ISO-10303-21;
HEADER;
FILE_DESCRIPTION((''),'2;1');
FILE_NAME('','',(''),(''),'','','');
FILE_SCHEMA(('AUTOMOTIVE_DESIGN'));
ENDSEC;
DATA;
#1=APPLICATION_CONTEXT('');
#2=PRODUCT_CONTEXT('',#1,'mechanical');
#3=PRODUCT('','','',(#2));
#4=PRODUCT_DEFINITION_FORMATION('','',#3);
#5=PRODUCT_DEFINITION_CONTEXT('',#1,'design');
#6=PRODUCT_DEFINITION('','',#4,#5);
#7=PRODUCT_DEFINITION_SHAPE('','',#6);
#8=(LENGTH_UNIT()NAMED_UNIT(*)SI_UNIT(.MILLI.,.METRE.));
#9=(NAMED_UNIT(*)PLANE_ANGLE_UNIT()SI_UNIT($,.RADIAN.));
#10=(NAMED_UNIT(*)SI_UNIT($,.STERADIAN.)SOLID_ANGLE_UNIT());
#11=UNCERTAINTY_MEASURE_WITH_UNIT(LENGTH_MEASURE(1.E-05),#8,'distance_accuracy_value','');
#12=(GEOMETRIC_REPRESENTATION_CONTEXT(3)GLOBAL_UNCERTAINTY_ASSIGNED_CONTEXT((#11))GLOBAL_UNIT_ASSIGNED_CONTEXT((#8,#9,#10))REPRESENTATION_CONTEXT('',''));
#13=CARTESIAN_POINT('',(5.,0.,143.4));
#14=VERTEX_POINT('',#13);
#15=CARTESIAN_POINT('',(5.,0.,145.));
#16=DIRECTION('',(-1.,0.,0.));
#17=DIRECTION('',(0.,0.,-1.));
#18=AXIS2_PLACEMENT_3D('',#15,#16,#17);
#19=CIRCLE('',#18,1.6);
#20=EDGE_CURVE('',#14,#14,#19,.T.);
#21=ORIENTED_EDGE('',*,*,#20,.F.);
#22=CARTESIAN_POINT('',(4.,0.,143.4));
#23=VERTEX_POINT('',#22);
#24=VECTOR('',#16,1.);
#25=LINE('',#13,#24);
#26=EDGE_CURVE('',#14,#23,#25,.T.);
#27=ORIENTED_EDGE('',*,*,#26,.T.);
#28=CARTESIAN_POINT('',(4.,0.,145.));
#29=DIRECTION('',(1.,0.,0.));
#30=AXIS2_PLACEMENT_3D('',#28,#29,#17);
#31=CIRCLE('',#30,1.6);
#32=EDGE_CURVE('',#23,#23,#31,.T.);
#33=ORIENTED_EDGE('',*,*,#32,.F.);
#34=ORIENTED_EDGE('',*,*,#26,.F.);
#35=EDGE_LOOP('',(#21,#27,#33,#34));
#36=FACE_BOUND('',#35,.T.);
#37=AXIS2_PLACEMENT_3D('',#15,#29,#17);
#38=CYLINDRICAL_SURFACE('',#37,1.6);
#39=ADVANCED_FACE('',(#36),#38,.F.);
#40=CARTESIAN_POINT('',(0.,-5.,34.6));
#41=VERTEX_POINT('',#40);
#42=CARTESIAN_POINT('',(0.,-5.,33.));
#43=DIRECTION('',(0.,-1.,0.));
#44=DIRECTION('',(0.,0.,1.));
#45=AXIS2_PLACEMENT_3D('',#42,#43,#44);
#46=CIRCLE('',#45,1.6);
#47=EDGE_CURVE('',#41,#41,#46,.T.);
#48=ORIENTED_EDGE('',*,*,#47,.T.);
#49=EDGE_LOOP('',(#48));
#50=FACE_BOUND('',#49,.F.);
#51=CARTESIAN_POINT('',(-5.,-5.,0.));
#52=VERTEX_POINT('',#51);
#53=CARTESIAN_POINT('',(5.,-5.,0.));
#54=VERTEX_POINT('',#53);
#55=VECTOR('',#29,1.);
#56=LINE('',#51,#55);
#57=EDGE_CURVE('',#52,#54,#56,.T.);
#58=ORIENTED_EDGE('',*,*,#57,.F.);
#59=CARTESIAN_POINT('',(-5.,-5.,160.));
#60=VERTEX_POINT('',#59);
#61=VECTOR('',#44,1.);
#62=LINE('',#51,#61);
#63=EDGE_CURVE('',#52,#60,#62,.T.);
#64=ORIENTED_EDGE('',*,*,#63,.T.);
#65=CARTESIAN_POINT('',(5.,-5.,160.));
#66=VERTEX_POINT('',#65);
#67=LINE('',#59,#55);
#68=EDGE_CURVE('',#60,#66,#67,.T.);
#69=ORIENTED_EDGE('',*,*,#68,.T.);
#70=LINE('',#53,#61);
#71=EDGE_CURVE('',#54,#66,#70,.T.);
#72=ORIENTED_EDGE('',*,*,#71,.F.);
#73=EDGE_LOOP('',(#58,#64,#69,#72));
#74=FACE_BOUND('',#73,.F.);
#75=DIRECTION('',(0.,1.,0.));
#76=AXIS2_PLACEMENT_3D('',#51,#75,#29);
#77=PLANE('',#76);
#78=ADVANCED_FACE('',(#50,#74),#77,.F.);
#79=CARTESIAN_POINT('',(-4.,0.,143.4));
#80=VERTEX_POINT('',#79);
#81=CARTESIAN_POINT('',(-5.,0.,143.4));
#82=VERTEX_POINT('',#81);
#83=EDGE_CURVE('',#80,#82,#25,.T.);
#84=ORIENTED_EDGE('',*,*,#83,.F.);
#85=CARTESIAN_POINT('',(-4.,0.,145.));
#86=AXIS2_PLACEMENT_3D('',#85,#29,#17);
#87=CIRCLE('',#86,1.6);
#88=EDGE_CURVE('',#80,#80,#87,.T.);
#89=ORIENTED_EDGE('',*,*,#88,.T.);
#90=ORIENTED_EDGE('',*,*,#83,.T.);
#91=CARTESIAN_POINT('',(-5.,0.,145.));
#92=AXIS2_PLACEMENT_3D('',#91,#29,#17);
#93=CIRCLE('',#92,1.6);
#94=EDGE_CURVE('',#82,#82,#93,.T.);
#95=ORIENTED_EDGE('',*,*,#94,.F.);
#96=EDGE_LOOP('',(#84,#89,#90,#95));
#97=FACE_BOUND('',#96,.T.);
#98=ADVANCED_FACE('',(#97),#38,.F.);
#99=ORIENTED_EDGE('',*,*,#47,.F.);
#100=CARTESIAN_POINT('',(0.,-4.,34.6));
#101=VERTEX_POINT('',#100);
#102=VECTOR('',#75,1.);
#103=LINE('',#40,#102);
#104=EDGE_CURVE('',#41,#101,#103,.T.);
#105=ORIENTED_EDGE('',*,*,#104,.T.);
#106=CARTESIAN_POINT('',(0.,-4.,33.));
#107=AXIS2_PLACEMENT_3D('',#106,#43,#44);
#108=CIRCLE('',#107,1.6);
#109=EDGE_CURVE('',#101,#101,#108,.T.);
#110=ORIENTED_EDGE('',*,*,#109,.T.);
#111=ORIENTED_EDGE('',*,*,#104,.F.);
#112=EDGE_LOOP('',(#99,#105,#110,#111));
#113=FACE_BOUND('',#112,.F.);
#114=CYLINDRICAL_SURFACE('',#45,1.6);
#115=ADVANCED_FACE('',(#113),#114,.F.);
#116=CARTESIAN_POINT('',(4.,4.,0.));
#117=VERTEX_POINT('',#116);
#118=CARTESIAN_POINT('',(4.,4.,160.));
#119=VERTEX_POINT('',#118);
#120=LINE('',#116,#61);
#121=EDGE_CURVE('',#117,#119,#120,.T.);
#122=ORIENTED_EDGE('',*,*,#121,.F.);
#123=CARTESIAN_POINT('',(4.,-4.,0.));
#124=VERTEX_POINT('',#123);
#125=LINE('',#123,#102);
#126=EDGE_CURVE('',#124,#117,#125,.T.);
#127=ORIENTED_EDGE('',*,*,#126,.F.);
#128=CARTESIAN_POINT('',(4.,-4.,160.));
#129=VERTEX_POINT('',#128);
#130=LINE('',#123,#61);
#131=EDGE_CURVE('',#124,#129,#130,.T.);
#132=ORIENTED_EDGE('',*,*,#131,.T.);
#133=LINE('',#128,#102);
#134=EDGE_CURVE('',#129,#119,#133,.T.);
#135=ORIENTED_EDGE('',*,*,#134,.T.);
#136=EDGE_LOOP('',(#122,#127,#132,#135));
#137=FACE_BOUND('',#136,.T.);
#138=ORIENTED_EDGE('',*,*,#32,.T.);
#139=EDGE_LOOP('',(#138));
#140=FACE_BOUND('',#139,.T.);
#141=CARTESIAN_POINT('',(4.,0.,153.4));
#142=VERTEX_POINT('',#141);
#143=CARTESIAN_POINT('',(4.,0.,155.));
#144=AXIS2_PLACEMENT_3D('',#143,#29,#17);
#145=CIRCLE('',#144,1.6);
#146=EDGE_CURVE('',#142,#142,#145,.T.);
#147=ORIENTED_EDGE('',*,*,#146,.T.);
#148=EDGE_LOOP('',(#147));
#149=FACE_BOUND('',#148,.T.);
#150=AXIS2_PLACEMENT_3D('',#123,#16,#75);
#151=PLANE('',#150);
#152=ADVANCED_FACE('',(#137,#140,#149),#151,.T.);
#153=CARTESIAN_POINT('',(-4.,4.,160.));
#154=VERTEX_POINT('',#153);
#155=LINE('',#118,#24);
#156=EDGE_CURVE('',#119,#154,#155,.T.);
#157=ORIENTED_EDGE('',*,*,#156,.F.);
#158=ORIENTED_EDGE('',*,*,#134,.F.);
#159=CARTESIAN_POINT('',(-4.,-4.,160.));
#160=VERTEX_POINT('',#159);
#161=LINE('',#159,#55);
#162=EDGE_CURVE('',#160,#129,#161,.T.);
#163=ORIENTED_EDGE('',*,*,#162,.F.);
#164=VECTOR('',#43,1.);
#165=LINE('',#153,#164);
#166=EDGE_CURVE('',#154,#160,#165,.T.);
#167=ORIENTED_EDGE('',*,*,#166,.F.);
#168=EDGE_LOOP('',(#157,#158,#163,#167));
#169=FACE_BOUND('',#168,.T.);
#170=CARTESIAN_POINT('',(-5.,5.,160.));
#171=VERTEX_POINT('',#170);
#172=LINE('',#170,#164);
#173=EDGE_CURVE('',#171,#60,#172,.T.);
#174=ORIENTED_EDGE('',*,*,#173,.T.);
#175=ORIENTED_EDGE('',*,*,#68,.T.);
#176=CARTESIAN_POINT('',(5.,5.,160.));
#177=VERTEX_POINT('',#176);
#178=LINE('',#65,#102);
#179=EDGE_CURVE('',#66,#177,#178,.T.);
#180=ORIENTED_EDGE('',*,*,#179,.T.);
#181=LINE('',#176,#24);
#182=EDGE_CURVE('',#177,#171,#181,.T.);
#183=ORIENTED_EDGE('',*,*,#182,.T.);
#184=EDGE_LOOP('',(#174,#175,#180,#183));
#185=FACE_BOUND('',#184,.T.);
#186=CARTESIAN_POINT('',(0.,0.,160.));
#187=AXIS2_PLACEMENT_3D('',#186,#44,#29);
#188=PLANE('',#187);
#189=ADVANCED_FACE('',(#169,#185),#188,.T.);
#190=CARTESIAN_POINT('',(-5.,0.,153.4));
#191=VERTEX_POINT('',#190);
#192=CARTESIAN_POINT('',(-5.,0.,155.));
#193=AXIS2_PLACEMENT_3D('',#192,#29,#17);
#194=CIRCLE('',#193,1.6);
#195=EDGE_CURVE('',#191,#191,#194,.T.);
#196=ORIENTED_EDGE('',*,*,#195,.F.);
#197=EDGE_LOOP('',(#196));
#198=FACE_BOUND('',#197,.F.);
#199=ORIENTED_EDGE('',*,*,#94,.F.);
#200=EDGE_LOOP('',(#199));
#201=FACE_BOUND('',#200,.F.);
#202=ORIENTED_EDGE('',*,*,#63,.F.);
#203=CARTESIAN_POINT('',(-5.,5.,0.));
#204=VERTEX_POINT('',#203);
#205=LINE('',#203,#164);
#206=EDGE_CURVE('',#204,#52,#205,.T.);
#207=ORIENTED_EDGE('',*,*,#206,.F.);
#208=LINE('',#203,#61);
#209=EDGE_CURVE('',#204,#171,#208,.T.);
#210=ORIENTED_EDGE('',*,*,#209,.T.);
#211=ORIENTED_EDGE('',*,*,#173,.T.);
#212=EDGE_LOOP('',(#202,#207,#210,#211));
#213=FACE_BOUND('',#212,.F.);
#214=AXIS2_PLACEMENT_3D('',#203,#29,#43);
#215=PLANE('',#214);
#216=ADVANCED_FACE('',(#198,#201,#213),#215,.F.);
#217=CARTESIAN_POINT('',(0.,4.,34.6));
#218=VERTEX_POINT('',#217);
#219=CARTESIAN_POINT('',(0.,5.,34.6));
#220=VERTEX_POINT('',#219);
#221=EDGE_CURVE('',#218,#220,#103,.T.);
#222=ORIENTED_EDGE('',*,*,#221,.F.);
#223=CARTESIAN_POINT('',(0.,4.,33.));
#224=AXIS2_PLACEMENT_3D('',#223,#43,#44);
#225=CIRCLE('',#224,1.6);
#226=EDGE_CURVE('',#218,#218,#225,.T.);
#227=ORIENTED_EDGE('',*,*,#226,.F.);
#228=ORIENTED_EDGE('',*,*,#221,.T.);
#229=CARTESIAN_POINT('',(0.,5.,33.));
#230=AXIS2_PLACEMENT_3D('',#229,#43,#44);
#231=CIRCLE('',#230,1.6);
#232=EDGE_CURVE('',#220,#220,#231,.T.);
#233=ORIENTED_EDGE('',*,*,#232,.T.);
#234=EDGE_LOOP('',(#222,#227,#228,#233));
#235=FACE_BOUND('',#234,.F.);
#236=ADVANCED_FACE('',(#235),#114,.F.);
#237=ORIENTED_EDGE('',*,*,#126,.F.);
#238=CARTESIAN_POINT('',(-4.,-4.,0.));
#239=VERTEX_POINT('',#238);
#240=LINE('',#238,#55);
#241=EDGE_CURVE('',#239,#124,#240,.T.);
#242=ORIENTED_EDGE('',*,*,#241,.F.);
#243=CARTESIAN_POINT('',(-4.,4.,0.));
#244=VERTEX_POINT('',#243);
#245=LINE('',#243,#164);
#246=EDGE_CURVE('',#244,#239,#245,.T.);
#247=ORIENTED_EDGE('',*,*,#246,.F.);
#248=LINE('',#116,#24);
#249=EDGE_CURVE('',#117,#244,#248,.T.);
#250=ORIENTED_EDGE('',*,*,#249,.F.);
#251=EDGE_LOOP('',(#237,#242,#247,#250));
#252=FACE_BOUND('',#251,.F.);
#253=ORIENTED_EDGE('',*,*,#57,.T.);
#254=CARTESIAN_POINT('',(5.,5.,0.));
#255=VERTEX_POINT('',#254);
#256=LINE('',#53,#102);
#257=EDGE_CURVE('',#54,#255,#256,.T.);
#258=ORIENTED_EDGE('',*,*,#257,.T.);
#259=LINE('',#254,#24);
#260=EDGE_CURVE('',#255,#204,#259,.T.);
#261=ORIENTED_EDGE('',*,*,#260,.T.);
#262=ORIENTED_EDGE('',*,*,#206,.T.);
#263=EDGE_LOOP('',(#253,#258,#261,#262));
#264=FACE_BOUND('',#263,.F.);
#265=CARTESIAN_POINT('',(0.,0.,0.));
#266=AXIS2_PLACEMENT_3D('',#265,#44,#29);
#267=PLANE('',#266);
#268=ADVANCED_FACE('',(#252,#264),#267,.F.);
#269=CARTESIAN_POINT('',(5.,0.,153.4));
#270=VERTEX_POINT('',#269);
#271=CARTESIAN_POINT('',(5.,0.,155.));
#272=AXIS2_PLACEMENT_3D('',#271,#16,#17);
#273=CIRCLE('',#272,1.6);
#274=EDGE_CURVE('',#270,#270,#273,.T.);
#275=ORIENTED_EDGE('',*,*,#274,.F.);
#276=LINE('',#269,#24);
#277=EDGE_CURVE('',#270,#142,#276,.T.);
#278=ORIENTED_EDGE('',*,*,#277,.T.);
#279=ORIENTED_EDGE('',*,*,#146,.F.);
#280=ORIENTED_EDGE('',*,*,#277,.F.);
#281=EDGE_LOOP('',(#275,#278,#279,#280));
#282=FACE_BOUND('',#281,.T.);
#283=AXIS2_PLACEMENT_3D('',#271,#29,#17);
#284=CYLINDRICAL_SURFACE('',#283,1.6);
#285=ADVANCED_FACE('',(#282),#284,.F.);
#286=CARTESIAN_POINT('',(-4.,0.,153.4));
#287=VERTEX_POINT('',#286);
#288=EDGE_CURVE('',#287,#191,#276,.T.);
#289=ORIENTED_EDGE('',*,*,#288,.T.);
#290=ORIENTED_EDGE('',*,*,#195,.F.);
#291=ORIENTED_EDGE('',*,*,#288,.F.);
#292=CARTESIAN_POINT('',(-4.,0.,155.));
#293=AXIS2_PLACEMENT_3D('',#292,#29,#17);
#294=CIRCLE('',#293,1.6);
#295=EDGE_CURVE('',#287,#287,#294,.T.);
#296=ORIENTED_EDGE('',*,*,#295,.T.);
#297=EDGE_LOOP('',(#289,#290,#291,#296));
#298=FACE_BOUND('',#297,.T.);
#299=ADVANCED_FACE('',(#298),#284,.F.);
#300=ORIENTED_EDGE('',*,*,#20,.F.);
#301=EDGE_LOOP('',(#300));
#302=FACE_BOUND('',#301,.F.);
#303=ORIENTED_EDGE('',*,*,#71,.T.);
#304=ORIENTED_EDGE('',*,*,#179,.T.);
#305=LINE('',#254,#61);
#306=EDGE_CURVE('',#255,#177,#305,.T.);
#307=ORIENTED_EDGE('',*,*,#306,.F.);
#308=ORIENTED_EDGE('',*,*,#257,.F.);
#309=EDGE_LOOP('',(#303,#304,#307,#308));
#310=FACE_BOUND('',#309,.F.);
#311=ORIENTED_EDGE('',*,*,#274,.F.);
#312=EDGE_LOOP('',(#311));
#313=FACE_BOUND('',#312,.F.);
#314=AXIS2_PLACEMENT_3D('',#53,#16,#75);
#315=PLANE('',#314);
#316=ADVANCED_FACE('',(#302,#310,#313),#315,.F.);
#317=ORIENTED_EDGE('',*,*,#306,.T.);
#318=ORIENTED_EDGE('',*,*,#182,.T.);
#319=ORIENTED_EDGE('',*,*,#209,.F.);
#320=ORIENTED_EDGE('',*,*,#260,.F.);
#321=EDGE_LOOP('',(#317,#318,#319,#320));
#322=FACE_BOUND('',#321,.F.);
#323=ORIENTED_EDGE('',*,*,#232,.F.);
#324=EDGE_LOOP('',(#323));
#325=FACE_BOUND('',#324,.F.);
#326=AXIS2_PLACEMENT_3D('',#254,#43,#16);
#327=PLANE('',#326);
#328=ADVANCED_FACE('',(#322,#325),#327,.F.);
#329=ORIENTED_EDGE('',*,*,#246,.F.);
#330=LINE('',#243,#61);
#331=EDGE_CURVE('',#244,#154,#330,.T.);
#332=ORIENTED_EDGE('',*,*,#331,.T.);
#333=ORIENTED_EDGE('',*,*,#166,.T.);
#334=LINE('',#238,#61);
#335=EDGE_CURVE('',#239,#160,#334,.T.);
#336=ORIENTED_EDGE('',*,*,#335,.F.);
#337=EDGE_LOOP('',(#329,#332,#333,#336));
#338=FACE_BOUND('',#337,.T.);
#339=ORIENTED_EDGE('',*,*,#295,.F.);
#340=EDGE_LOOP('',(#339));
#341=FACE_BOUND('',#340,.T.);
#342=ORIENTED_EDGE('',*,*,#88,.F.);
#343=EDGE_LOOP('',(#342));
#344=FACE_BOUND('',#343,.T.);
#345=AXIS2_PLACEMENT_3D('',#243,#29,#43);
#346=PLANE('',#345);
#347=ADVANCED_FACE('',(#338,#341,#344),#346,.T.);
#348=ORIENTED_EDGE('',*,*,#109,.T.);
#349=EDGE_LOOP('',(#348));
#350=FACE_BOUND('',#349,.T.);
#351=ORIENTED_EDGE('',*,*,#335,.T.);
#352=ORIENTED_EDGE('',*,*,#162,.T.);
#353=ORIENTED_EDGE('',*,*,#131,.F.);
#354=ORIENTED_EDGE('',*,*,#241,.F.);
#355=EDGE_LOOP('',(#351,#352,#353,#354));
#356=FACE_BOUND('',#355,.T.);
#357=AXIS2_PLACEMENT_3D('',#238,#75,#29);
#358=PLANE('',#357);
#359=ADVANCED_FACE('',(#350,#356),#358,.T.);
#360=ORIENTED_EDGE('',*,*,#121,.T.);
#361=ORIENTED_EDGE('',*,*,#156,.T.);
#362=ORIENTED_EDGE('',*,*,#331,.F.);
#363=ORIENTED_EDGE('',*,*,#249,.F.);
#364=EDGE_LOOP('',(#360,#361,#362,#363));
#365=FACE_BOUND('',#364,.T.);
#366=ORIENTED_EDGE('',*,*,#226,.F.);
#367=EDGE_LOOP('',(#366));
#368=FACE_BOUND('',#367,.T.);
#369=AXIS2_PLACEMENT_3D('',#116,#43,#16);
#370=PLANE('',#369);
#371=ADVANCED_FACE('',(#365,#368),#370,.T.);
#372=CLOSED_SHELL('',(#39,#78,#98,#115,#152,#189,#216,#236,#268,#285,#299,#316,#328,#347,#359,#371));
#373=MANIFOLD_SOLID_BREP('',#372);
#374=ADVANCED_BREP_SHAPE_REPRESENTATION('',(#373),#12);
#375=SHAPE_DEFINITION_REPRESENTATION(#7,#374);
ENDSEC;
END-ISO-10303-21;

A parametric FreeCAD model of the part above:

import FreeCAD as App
import Part
import Sketcher

V = App.Vector
Q = App.Units.Quantity


def add_polygon(sketch, points):
    """Adds a closed chain of lines whose ends are joined by coincident constraints."""
    first, n = sketch.GeometryCount, len(points)
    for a, b in zip(points, points[1:] + points[:1]):
        sketch.addGeometry(Part.LineSegment(App.Vector(*a, 0), App.Vector(*b, 0)), False)
    for i in range(n):
        sketch.addConstraint(Sketcher.Constraint("Coincident", first + i, 2, first + (i + 1) % n, 1))

doc = App.newDocument("Part")
body = doc.addObject("PartDesign::Body", "Body")

# Sketch on XY plane
sketch1 = body.newObject("Sketcher::SketchObject", "Sketch")
sketch1.AttachmentSupport = (doc.getObject("XY_Plane"), [""])
sketch1.MapMode = "FlatFace"
add_polygon(sketch1, [(-5, 5), (-5, -5), (5, -5), (5, 5)])  # lines 0-3
add_polygon(sketch1, [(4, -4), (-4, -4), (-4, 4), (4, 4)])  # lines 4-7
sketch1.addConstraint([
    Sketcher.Constraint("Vertical", 0),
    Sketcher.Constraint("Horizontal", 1),
    Sketcher.Constraint("Vertical", 2),
    Sketcher.Constraint("Horizontal", 3),
    Sketcher.Constraint("Horizontal", 4),
    Sketcher.Constraint("Vertical", 5),
    Sketcher.Constraint("Horizontal", 6),
    Sketcher.Constraint("Vertical", 7),
    Sketcher.Constraint("Symmetric", 0, 2, 2, 2, -1, 1),
    Sketcher.Constraint("Symmetric", 4, 2, 6, 2, -1, 1),
    Sketcher.Constraint("Equal", 3, 0),
    Sketcher.Constraint("Equal", 6, 5),
    Sketcher.Constraint("DistanceX", 1, 1, 1, 2, Q("10 mm")),
    Sketcher.Constraint("DistanceX", 4, 2, 4, 1, Q("8 mm")),
])
pad1 = body.newObject("PartDesign::Pad", "Pad")
pad1.Profile = sketch1
pad1.Length = 160

# Sketch on YZ plane
sketch2 = body.newObject("Sketcher::SketchObject", "Sketch001")
sketch2.AttachmentSupport = (doc.getObject("YZ_Plane"), [""])
sketch2.MapMode = "FlatFace"
sketch2.AttachmentOffset = App.Placement(V(0, 0, 5), App.Rotation())
sketch2.addGeometry(Part.Circle(V(0, 155, 0), V(0, 0, 1), 1.6), False)
sketch2.addConstraint([
    Sketcher.Constraint("PointOnObject", 0, 3, -2),
    Sketcher.Constraint("Diameter", 0, Q("3.2 mm")),
    Sketcher.Constraint("DistanceY", -1, 1, 0, 3, Q("155 mm")),
])
doc.recompute()
hole = body.newObject("PartDesign::Hole", "Hole")
hole.Profile = sketch2
hole.ThreadType = "None"
hole.Diameter = 3.2
hole.DepthType = "ThroughAll"

# Sketch on YZ plane
sketch3 = body.newObject("Sketcher::SketchObject", "Sketch002")
sketch3.AttachmentSupport = (doc.getObject("YZ_Plane"), [""])
sketch3.MapMode = "FlatFace"
sketch3.AttachmentOffset = App.Placement(V(0, 0, 5), App.Rotation())
sketch3.addGeometry(Part.Circle(V(0, 145, 0), V(0, 0, 1), 1.6), False)
sketch3.addConstraint([
    Sketcher.Constraint("PointOnObject", 0, 3, -2),
    Sketcher.Constraint("Diameter", 0, Q("3.2 mm")),
    Sketcher.Constraint("DistanceY", -1, 1, 0, 3, Q("145 mm")),
])
doc.recompute()
hole2 = body.newObject("PartDesign::Hole", "Hole001")
hole2.Profile = sketch3
hole2.ThreadType = "None"
hole2.Diameter = 3.2
hole2.DepthType = "ThroughAll"

# Sketch on XZ plane
sketch4 = body.newObject("Sketcher::SketchObject", "Sketch003")
sketch4.AttachmentSupport = (doc.getObject("XZ_Plane"), [""])
sketch4.MapMode = "FlatFace"
sketch4.AttachmentOffset = App.Placement(V(0, 0, 5), App.Rotation())
sketch4.addGeometry(Part.Circle(V(0, 33, 0), V(0, 0, 1), 1.6), False)
sketch4.addConstraint([
    Sketcher.Constraint("PointOnObject", 0, 3, -2),
    Sketcher.Constraint("Diameter", 0, Q("3.2 mm")),
    Sketcher.Constraint("DistanceY", -1, 1, 0, 3, Q("33 mm")),
])
pocket1 = body.newObject("PartDesign::Pocket", "Pocket")
pocket1.Profile = sketch4
pocket1.Length = 33.3

doc.recompute()
